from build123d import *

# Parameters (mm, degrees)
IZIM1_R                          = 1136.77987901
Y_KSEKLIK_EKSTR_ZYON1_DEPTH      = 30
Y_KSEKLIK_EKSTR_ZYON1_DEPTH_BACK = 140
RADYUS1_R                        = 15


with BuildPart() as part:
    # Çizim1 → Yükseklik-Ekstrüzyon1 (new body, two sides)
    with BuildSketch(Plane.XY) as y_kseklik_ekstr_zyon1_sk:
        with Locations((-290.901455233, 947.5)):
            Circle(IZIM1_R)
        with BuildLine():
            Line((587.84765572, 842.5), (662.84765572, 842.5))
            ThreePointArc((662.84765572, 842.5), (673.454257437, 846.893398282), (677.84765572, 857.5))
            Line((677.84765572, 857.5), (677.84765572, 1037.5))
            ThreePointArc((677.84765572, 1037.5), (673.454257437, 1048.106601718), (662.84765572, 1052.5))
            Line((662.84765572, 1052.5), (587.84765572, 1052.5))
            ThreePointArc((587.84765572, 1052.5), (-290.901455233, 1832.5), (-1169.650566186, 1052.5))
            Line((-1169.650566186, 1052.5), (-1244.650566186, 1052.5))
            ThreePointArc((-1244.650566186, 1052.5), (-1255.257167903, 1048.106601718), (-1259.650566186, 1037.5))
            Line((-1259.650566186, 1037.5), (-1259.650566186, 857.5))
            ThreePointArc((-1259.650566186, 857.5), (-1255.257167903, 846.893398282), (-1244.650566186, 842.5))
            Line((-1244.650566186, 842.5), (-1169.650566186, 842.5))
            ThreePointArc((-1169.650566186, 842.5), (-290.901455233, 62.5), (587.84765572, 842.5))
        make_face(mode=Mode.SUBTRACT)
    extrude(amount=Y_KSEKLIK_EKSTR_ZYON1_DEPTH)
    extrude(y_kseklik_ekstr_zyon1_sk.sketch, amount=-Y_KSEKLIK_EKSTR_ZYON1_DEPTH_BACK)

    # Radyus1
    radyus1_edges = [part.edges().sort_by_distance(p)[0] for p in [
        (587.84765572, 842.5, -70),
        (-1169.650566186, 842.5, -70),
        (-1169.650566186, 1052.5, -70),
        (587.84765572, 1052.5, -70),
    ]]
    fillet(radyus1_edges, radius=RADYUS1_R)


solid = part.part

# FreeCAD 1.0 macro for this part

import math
import FreeCAD as App
import Part
import Sketcher
from FreeCAD import Vector


def edges_at(feature, points):
    """Names of the edges that pass closest to the given points."""
    edges = feature.Shape.Edges
    near = lambda p: min(range(len(edges)), key=lambda i: edges[i].distToShape(Part.Vertex(*p))[0])
    return sorted({f"Edge{near(p) + 1}" for p in points})

doc = App.newDocument("Part")
params = doc.addObject("Spreadsheet::Sheet", "Params")
for row, (alias, value) in enumerate([
    ("sketch1_radius", "885 mm"),
    ("sketch1_radius2", "15 mm"),
    ("sketch1_width", "75 mm"),
    ("sketch1_height", "180 mm"),
    ("pad1_length", "30 mm"),
    ("pad1_length2", "140 mm"),
    ("fillet_radius", "15 mm"),
], start=1):
    params.set(f"A{row}", alias)
    params.set(f"B{row}", "=" + value)
    params.setAlias(f"B{row}", alias)

body = doc.addObject("PartDesign::Body", "Body")

sketch1 = doc.addObject("Sketcher::SketchObject", "Sketch")
body.addObject(sketch1)
sketch1.AttachmentSupport = (doc.XY_Plane, [""])
sketch1.MapMode = "FlatFace"
sketch1.addGeometry([
    Part.Circle(Vector(-290.901455, 947.5, 0), Vector(0, 0, 1), 1136.779879),
    Part.LineSegment(Vector(662.847656, 842.5, 0), Vector(587.847656, 842.5, 0)),
    Part.ArcOfCircle(Part.Circle(Vector(-290.901455, 947.5, 0), Vector(0, 0, 1), 885), math.radians(-173.186146), math.radians(-6.813854)),
    Part.LineSegment(Vector(-1169.650566, 842.5, 0), Vector(-1244.650566, 842.5, 0)),
    Part.ArcOfCircle(Part.Circle(Vector(-1244.650566, 857.5, 0), Vector(0, 0, 1), 15), math.radians(-180), math.radians(-90)),
    Part.LineSegment(Vector(-1259.650566, 857.5, 0), Vector(-1259.650566, 1037.5, 0)),
    Part.ArcOfCircle(Part.Circle(Vector(-1244.650566, 1037.5, 0), Vector(0, 0, 1), 15), math.radians(90), math.radians(180)),
    Part.LineSegment(Vector(-1244.650566, 1052.5, 0), Vector(-1169.650566, 1052.5, 0)),
    Part.ArcOfCircle(Part.Circle(Vector(-290.901455, 947.5, 0), Vector(0, 0, 1), 885), math.radians(6.813854), math.radians(173.186146)),
    Part.LineSegment(Vector(587.847656, 1052.5, 0), Vector(662.847656, 1052.5, 0)),
    Part.ArcOfCircle(Part.Circle(Vector(662.847656, 1037.5, 0), Vector(0, 0, 1), 15), math.radians(0), math.radians(90)),
    Part.LineSegment(Vector(677.847656, 1037.5, 0), Vector(677.847656, 857.5, 0)),
    Part.ArcOfCircle(Part.Circle(Vector(662.847656, 857.5, 0), Vector(0, 0, 1), 15), math.radians(-90), math.radians(0)),
], False)
sketch1.addConstraint([
    Sketcher.Constraint("Coincident", 1, 2, 2, 2),
    Sketcher.Constraint("Coincident", 2, 1, 3, 1),
    Sketcher.Constraint("Tangent", 3, 2, 4, 2),
    Sketcher.Constraint("Tangent", 4, 1, 5, 1),
    Sketcher.Constraint("Tangent", 5, 2, 6, 2),
    Sketcher.Constraint("Tangent", 6, 1, 7, 1),
    Sketcher.Constraint("Coincident", 7, 2, 8, 2),
    Sketcher.Constraint("Coincident", 8, 1, 9, 1),
    Sketcher.Constraint("Tangent", 9, 2, 10, 2),
    Sketcher.Constraint("Tangent", 10, 1, 11, 1),
    Sketcher.Constraint("Tangent", 11, 2, 12, 2),
    Sketcher.Constraint("Tangent", 12, 1, 1, 1),
    Sketcher.Constraint("Horizontal", 1),
    Sketcher.Constraint("Horizontal", 3),
    Sketcher.Constraint("Vertical", 5),
    Sketcher.Constraint("Horizontal", 7),
    Sketcher.Constraint("Horizontal", 9),
    Sketcher.Constraint("Vertical", 11),
    Sketcher.Constraint("Coincident", 2, 3, 0, 3),
    Sketcher.Constraint("Coincident", 8, 3, 0, 3),
    Sketcher.Constraint("Equal", 4, 6),
    Sketcher.Constraint("Equal", 2, 8),
    Sketcher.Constraint("Equal", 6, 10),
    Sketcher.Constraint("Equal", 10, 12),
    Sketcher.Constraint("Horizontal", 6, 3, 10, 3),
    Sketcher.Constraint("Horizontal", 4, 3, 12, 3),
    Sketcher.Constraint("Equal", 1, 3),
    Sketcher.Constraint("Equal", 3, 7),
    Sketcher.Constraint("Radius", 2, 885.0),
    Sketcher.Constraint("Radius", 4, 15.0),
    Sketcher.Constraint("DistanceX", 1, 2, 1, 1, 75.0),
    Sketcher.Constraint("DistanceY", 5, 1, 5, 2, 180.0),
    Sketcher.Constraint("DistanceY", -1, 1, 0, 3, 947.5),
    Sketcher.Constraint("Diameter", 0, 2273.559758),
    Sketcher.Constraint("DistanceX", 0, 3, -1, 1, 290.901455),
])
sketch1.setExpression("Constraints[28]", "Params.sketch1_radius")
sketch1.setExpression("Constraints[29]", "Params.sketch1_radius2")
sketch1.setExpression("Constraints[30]", "Params.sketch1_width")
sketch1.setExpression("Constraints[31]", "Params.sketch1_height")
pad1 = doc.addObject("PartDesign::Pad", "Pad")
body.addObject(pad1)
pad1.Profile = sketch1
pad1.Type = "TwoLengths"
pad1.setExpression("Length", "Params.pad1_length")
pad1.setExpression("Length2", "Params.pad1_length2")
doc.recompute()

fillet = doc.addObject("PartDesign::Fillet", "Fillet")
body.addObject(fillet)
fillet.Base = (pad1, edges_at(pad1, [
    (587.848, 842.5, -55),
    (-1169.651, 842.5, -55),
    (-1169.651, 1052.5, -55),
    (587.848, 1052.5, -55),
]))
fillet.setExpression("Radius", "Params.fillet_radius")

doc.recompute()
